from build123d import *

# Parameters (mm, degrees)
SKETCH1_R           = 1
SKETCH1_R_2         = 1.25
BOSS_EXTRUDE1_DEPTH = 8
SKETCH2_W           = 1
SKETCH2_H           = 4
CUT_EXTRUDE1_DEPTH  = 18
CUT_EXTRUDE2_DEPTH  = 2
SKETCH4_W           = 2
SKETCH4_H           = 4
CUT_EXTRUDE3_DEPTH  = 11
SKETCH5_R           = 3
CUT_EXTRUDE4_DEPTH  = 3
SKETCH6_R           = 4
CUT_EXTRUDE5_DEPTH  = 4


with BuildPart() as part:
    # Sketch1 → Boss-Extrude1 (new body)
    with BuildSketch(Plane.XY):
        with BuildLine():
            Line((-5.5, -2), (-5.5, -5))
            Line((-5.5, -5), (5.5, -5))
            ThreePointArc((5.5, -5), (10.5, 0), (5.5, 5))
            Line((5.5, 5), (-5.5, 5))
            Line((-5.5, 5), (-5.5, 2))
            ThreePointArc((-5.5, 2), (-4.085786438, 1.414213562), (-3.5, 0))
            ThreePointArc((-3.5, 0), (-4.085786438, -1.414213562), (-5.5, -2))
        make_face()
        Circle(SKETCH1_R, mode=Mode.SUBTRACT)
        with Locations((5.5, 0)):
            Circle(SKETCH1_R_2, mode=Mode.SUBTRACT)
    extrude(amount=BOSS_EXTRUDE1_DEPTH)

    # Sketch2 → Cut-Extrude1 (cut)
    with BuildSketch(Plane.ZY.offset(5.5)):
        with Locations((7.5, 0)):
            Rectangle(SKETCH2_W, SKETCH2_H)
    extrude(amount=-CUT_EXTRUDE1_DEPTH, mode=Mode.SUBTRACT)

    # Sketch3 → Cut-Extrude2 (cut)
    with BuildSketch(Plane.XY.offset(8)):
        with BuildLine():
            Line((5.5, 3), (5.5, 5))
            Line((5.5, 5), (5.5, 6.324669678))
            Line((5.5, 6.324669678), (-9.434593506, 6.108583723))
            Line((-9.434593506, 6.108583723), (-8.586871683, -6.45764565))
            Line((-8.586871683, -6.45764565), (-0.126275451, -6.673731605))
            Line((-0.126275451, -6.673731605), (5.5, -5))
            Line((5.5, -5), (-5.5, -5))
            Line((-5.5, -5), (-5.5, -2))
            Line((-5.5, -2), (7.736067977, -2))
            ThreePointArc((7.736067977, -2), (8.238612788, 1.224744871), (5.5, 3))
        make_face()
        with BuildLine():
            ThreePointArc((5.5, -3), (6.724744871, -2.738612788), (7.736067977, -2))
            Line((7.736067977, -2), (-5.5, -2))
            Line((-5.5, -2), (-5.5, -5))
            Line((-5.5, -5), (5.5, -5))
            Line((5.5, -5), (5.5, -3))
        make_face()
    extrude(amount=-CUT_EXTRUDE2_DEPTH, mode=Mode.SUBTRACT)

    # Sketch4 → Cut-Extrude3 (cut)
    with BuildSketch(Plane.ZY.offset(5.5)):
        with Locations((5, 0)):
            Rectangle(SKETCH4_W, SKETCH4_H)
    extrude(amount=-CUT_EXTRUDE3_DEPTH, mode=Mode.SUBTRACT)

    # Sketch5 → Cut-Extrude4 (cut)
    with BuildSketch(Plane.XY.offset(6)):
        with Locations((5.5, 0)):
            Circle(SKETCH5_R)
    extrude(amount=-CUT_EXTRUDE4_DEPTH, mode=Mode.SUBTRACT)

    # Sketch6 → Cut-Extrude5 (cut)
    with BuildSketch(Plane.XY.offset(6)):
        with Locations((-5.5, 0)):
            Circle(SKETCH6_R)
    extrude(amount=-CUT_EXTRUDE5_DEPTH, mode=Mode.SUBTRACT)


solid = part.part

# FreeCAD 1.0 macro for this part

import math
import FreeCAD as App
import Part
import Sketcher
from FreeCAD import Vector


def add_polygon(sketch, points):
    """Adds a closed chain of lines whose ends are joined by coincident constraints."""
    first, n = sketch.GeometryCount, len(points)
    for a, b in zip(points, points[1:] + points[:1]):
        sketch.addGeometry(Part.LineSegment(App.Vector(*a, 0), App.Vector(*b, 0)), False)
    for i in range(n):
        sketch.addConstraint(Sketcher.Constraint("Coincident", first + i, 2, first + (i + 1) % n, 1))

doc = App.newDocument("Part")
body = doc.addObject("PartDesign::Body", "Body")

# Sketch on XY plane
sketch1 = body.newObject("Sketcher::SketchObject", "Sketch")
sketch1.AttachmentSupport = (doc.getObject("XY_Plane"), [""])
sketch1.MapMode = "FlatFace"
sketch1.addGeometry(Part.LineSegment(Vector(-5.5, -2, 0), Vector(-5.5, -5, 0)), False)
sketch1.addGeometry(Part.LineSegment(Vector(-5.5, -5, 0), Vector(5.5, -5, 0)), False)
sketch1.addGeometry(Part.ArcOfCircle(Part.Circle(Vector(5.5, 0, 0), Vector(0, 0, 1), 5), math.radians(-90), math.radians(90)), False)
sketch1.addGeometry(Part.LineSegment(Vector(5.5, 5, 0), Vector(-5.5, 5, 0)), False)
sketch1.addGeometry(Part.LineSegment(Vector(-5.5, 5, 0), Vector(-5.5, 2, 0)), False)
sketch1.addGeometry(Part.ArcOfCircle(Part.Circle(Vector(-5.5, 0, 0), Vector(0, 0, 1), 2), math.radians(0), math.radians(90)), False)
sketch1.addGeometry(Part.ArcOfCircle(Part.Circle(Vector(-5.5, 0, 0), Vector(0, 0, 1), 2), math.radians(-90), math.radians(0)), False)
sketch1.addGeometry(Part.Circle(Vector(0, 0, 0), Vector(0, 0, 1), 1), False)
sketch1.addGeometry(Part.Circle(Vector(5.5, 0, 0), Vector(0, 0, 1), 1.2), False)
sketch1.addConstraint(Sketcher.Constraint("Coincident", 0, 2, 1, 1))
sketch1.addConstraint(Sketcher.Constraint("Tangent", 1, 2, 2, 1))
sketch1.addConstraint(Sketcher.Constraint("Tangent", 2, 2, 3, 1))
sketch1.addConstraint(Sketcher.Constraint("Coincident", 3, 2, 4, 1))
sketch1.addConstraint(Sketcher.Constraint("Coincident", 4, 2, 5, 2))
sketch1.addConstraint(Sketcher.Constraint("Tangent", 5, 1, 6, 2))
sketch1.addConstraint(Sketcher.Constraint("Coincident", 6, 1, 0, 1))
sketch1.addConstraint(Sketcher.Constraint("Vertical", 0))
sketch1.addConstraint(Sketcher.Constraint("Horizontal", 1))
sketch1.addConstraint(Sketcher.Constraint("Horizontal", 3))
sketch1.addConstraint(Sketcher.Constraint("Vertical", 4))
sketch1.addConstraint(Sketcher.Constraint("Coincident", 7, 3, -1, 1))
sketch1.addConstraint(Sketcher.Constraint("Coincident", 8, 3, 2, 3))
sketch1.addConstraint(Sketcher.Constraint("Equal", 5, 6))
sketch1.addConstraint(Sketcher.Constraint("Symmetric", 2, 3, 5, 3, -1, 1))
sketch1.addConstraint(Sketcher.Constraint("Symmetric", 0, 2, 2, 2, -1, 1))
sketch1.addConstraint(Sketcher.Constraint("PointOnObject", 5, 1, -1))
sketch1.addConstraint(Sketcher.Constraint("Vertical", 0, 2, 3, 2))
sketch1.addConstraint(Sketcher.Constraint("Diameter", 7, 2.0))
sketch1.addConstraint(Sketcher.Constraint("Radius", 2, 5.0))
sketch1.addConstraint(Sketcher.Constraint("Radius", 5, 2.0))
sketch1.addConstraint(Sketcher.Constraint("Diameter", 8, 2.5))
sketch1.addConstraint(Sketcher.Constraint("DistanceX", 1, 1, 1, 2, 11.0))
pad1 = body.newObject("PartDesign::Pad", "Pad")
pad1.Profile = sketch1
pad1.Length = 8

# Sketch on YZ plane
sketch2 = body.newObject("Sketcher::SketchObject", "Sketch001")
sketch2.AttachmentSupport = (doc.getObject("YZ_Plane"), [""])
sketch2.MapMode = "FlatFace"
sketch2.AttachmentOffset = App.Placement(Vector(0, 0, -5.5), App.Rotation())
add_polygon(sketch2, [(2, 7), (-2, 7), (-2, 8), (2, 8)])  # lines 0-3
sketch2.addConstraint(Sketcher.Constraint("Horizontal", 0))
sketch2.addConstraint(Sketcher.Constraint("Vertical", 1))
sketch2.addConstraint(Sketcher.Constraint("Horizontal", 2))
sketch2.addConstraint(Sketcher.Constraint("Vertical", 3))
sketch2.addConstraint(Sketcher.Constraint("DistanceX", 0, 2, 0, 1, 4.0))
sketch2.addConstraint(Sketcher.Constraint("DistanceY", 1, 1, 1, 2, 1.0))
sketch2.addConstraint(Sketcher.Constraint("DistanceX", 0, 2, -1, 1, 2.0))
sketch2.addConstraint(Sketcher.Constraint("DistanceY", -1, 1, 0, 2, 7.0))
pocket1 = body.newObject("PartDesign::Pocket", "Pocket")
pocket1.Profile = sketch2
pocket1.Length = 18
pocket1.Reversed = True

# Sketch on XY plane
sketch3 = body.newObject("Sketcher::SketchObject", "Sketch002")
sketch3.AttachmentSupport = (doc.getObject("XY_Plane"), [""])
sketch3.MapMode = "FlatFace"
sketch3.AttachmentOffset = App.Placement(Vector(0, 0, 8), App.Rotation())
sketch3.addGeometry(Part.LineSegment(Vector(5.5, 3, 0), Vector(5.5, 6.3, 0)), False)
sketch3.addGeometry(Part.LineSegment(Vector(5.5, 6.3, 0), Vector(-9.4, 6.1, 0)), False)
sketch3.addGeometry(Part.LineSegment(Vector(-9.4, 6.1, 0), Vector(-8.6, -6.5, 0)), False)
sketch3.addGeometry(Part.LineSegment(Vector(-8.6, -6.5, 0), Vector(-0.1, -6.7, 0)), False)
sketch3.addGeometry(Part.LineSegment(Vector(-0.1, -6.7, 0), Vector(5.5, -5, 0)), False)
sketch3.addGeometry(Part.LineSegment(Vector(5.5, -5, 0), Vector(5.5, -3, 0)), False)
sketch3.addGeometry(Part.ArcOfCircle(Part.Circle(Vector(5.5, 0, 0), Vector(0, 0, 1), 3), math.radians(-90), math.radians(-42)), False)
sketch3.addGeometry(Part.ArcOfCircle(Part.Circle(Vector(5.5, 0, 0), Vector(0, 0, 1), 3), math.radians(-42), math.radians(90)), False)
sketch3.addConstraint(Sketcher.Constraint("Coincident", 0, 2, 1, 1))
sketch3.addConstraint(Sketcher.Constraint("Coincident", 1, 2, 2, 1))
sketch3.addConstraint(Sketcher.Constraint("Coincident", 2, 2, 3, 1))
sketch3.addConstraint(Sketcher.Constraint("Coincident", 3, 2, 4, 1))
sketch3.addConstraint(Sketcher.Constraint("Coincident", 4, 2, 5, 1))
sketch3.addConstraint(Sketcher.Constraint("Coincident", 5, 2, 6, 1))
sketch3.addConstraint(Sketcher.Constraint("Tangent", 6, 2, 7, 1))
sketch3.addConstraint(Sketcher.Constraint("Coincident", 7, 2, 0, 1))
sketch3.addConstraint(Sketcher.Constraint("Vertical", 0))
sketch3.addConstraint(Sketcher.Constraint("Vertical", 5))
sketch3.addConstraint(Sketcher.Constraint("Equal", 6, 7))
sketch3.addConstraint(Sketcher.Constraint("Symmetric", 5, 2, 7, 2, -1))
sketch3.addConstraint(Sketcher.Constraint("Vertical", 7, 3, 0, 2))
sketch3.addConstraint(Sketcher.Constraint("Radius", 6, 3.0))
sketch3.addConstraint(Sketcher.Constraint("DistanceY", 5, 1, 5, 2, 2.0))
sketch3.addConstraint(Sketcher.Constraint("DistanceY", 6, 2, -1, 1, 2.0))
sketch3.addConstraint(Sketcher.Constraint("DistanceX", -1, 1, 6, 3, 5.5))
sketch3.addConstraint(Sketcher.Constraint("DistanceY", 0, 1, 0, 2, 3.32467))
sketch3.addConstraint(Sketcher.Constraint("DistanceY", 3, 2, 0, 2, 12.998401))
sketch3.addConstraint(Sketcher.Constraint("Distance", 2, 12.594791))
sketch3.addConstraint(Sketcher.Constraint("DistanceX", 2, 2, -1, 1, 8.586872))
sketch3.addConstraint(Sketcher.Constraint("DistanceX", 1, 2, 2, 2, 0.847722))
sketch3.addConstraint(Sketcher.Constraint("DistanceX", 1, 2, 3, 2, 9.308318))
sketch3.addConstraint(Sketcher.Constraint("Distance", 1, 14.936157))
pocket2 = body.newObject("PartDesign::Pocket", "Pocket001")
pocket2.Profile = sketch3
pocket2.Length = 2

# Sketch on YZ plane
sketch4 = body.newObject("Sketcher::SketchObject", "Sketch003")
sketch4.AttachmentSupport = (doc.getObject("YZ_Plane"), [""])
sketch4.MapMode = "FlatFace"
sketch4.AttachmentOffset = App.Placement(Vector(0, 0, -5.5), App.Rotation())
add_polygon(sketch4, [(2, 4), (-2, 4), (-2, 6), (2, 6)])  # lines 0-3
sketch4.addConstraint(Sketcher.Constraint("Horizontal", 0))
sketch4.addConstraint(Sketcher.Constraint("Vertical", 1))
sketch4.addConstraint(Sketcher.Constraint("Horizontal", 2))
sketch4.addConstraint(Sketcher.Constraint("Vertical", 3))
sketch4.addConstraint(Sketcher.Constraint("DistanceX", 0, 2, 0, 1, 4.0))
sketch4.addConstraint(Sketcher.Constraint("DistanceY", 1, 1, 1, 2, 2.0))
sketch4.addConstraint(Sketcher.Constraint("DistanceX", 0, 2, -1, 1, 2.0))
sketch4.addConstraint(Sketcher.Constraint("DistanceY", -1, 1, 0, 2, 4.0))
pocket3 = body.newObject("PartDesign::Pocket", "Pocket002")
pocket3.Profile = sketch4
pocket3.Length = 11
pocket3.Reversed = True

# Sketch on XY plane
sketch5 = body.newObject("Sketcher::SketchObject", "Sketch004")
sketch5.AttachmentSupport = (doc.getObject("XY_Plane"), [""])
sketch5.MapMode = "FlatFace"
sketch5.AttachmentOffset = App.Placement(Vector(0, 0, 6), App.Rotation())
sketch5.addGeometry(Part.Circle(Vector(5.5, 0, 0), Vector(0, 0, 1), 3), False)
sketch5.addConstraint(Sketcher.Constraint("PointOnObject", 0, 3, -1))
sketch5.addConstraint(Sketcher.Constraint("Diameter", 0, 6.0))
sketch5.addConstraint(Sketcher.Constraint("DistanceX", -1, 1, 0, 3, 5.5))
pocket4 = body.newObject("PartDesign::Pocket", "Pocket003")
pocket4.Profile = sketch5
pocket4.Length = 3

# Sketch on XY plane
sketch6 = body.newObject("Sketcher::SketchObject", "Sketch005")
sketch6.AttachmentSupport = (doc.getObject("XY_Plane"), [""])
sketch6.MapMode = "FlatFace"
sketch6.AttachmentOffset = App.Placement(Vector(0, 0, 6), App.Rotation())
sketch6.addGeometry(Part.Circle(Vector(-5.5, 0, 0), Vector(0, 0, 1), 4), False)
sketch6.addConstraint(Sketcher.Constraint("PointOnObject", 0, 3, -1))
sketch6.addConstraint(Sketcher.Constraint("Diameter", 0, 8.0))
sketch6.addConstraint(Sketcher.Constraint("DistanceX", 0, 3, -1, 1, 5.5))
pocket5 = body.newObject("PartDesign::Pocket", "Pocket004")
pocket5.Profile = sketch6
pocket5.Length = 4

doc.recompute()
